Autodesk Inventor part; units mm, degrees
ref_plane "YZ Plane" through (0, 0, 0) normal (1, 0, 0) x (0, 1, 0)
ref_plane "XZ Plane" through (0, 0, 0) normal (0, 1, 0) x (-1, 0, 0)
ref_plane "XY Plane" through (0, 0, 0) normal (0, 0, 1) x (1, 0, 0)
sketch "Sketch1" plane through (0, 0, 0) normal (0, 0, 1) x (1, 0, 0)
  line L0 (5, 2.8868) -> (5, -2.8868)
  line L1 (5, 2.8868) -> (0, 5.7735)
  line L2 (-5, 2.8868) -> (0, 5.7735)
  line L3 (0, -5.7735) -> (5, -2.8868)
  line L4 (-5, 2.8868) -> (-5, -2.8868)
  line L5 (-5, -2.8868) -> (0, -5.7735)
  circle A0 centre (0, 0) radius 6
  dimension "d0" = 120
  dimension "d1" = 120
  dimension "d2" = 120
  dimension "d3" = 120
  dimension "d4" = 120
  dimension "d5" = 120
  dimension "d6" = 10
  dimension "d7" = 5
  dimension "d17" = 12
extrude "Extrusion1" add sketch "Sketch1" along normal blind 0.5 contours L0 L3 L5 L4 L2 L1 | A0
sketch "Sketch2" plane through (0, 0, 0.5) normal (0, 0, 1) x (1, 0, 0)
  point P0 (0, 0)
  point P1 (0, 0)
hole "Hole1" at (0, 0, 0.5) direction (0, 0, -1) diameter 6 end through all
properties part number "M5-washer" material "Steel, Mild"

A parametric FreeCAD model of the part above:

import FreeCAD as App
import Part
import Sketcher

V = App.Vector

doc = App.newDocument("Part")
params = doc.addObject("Spreadsheet::Sheet", "Params")
for row, (alias, value) in enumerate([
    ("sketch1_diameter", "12 mm"),
    ("pad1_length", "0.5 mm"),
    ("sketch2_diameter", "6 mm"),
    ("hole_diameter", "6 mm"),
], start=1):
    params.set(f"A{row}", alias)
    params.set(f"B{row}", "=" + value)
    params.setAlias(f"B{row}", alias)

body = doc.addObject("PartDesign::Body", "Body")

# Sketch on XY plane
sketch1 = doc.addObject("Sketcher::SketchObject", "Sketch")
body.addObject(sketch1)
sketch1.AttachmentSupport = (doc.XY_Plane, [""])
sketch1.MapMode = "FlatFace"
sketch1.addGeometry(Part.Circle(V(0, 0, 0), V(0, 0, 1), 6), False)
sketch1.addConstraint([
    Sketcher.Constraint("Coincident", 0, 3, -1, 1),
    Sketcher.Constraint("Diameter", 0, 12.0),
])
sketch1.setExpression("Constraints[1]", "Params.sketch1_diameter")
pad1 = doc.addObject("PartDesign::Pad", "Pad")
body.addObject(pad1)
pad1.Profile = sketch1
pad1.setExpression("Length", "Params.pad1_length")

# Sketch on XY plane
sketch2 = doc.addObject("Sketcher::SketchObject", "Sketch001")
body.addObject(sketch2)
sketch2.AttachmentSupport = (doc.XY_Plane, [""])
sketch2.MapMode = "FlatFace"
sketch2.AttachmentOffset = App.Placement(V(0, 0, 0.5), App.Rotation())
sketch2.addGeometry(Part.Circle(V(0, 0, 0), V(0, 0, 1), 3), False)
sketch2.addConstraint([
    Sketcher.Constraint("Coincident", 0, 3, -1, 1),
    Sketcher.Constraint("Diameter", 0, 6.0),
])
sketch2.setExpression("Constraints[1]", "Params.sketch2_diameter")
doc.recompute()
hole = doc.addObject("PartDesign::Hole", "Hole")
body.addObject(hole)
hole.Profile = sketch2
hole.ThreadType = "None"
hole.setExpression("Diameter", "Params.hole_diameter")
hole.DepthType = "ThroughAll"

doc.recompute()
